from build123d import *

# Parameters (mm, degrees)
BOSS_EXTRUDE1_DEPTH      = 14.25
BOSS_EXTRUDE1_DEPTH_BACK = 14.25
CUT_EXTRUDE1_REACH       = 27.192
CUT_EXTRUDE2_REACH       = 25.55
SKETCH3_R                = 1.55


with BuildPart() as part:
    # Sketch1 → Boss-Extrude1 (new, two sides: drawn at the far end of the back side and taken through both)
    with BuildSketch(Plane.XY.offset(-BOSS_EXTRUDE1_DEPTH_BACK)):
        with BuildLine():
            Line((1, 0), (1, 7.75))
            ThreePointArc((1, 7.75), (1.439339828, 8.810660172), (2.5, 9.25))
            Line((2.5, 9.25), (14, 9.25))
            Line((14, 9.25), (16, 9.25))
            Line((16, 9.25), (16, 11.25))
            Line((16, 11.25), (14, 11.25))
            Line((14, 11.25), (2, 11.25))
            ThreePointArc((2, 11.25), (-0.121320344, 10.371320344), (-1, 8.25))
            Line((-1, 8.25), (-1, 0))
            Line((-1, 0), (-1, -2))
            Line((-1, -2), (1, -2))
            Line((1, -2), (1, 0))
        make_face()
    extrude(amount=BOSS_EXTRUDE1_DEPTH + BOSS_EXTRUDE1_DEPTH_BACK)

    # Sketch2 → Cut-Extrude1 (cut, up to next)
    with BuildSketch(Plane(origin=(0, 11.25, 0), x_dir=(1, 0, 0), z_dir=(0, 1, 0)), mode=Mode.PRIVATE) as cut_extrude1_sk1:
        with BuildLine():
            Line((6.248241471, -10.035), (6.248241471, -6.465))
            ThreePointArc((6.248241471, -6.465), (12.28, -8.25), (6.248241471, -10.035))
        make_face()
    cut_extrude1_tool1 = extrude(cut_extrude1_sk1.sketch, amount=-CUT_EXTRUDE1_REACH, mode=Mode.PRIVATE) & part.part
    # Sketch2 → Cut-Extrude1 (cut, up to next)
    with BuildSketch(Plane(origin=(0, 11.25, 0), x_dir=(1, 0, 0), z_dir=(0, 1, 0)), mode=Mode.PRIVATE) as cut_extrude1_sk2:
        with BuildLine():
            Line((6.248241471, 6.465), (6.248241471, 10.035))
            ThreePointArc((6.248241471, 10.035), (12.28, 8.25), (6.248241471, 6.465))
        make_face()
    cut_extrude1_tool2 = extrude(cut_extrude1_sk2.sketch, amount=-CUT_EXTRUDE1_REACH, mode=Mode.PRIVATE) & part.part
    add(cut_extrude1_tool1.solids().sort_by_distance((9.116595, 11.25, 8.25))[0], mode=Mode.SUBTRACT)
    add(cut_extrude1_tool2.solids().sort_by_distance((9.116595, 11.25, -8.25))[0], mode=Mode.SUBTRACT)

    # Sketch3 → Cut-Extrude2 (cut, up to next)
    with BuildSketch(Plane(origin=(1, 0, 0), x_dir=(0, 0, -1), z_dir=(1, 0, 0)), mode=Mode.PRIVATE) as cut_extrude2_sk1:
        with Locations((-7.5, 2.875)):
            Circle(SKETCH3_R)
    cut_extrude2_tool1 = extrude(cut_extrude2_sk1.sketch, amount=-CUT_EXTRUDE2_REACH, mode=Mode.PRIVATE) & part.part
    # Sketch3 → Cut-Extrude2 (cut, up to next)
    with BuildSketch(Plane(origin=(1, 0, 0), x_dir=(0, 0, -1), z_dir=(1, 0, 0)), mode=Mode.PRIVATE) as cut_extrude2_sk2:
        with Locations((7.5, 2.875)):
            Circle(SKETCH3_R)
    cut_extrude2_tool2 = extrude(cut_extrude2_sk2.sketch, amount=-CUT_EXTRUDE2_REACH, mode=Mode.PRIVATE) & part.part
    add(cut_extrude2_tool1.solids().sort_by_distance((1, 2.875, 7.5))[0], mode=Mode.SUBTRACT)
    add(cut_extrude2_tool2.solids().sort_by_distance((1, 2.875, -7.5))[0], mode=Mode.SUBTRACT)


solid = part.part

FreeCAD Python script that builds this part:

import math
import FreeCAD as App
import Part
import Sketcher
from FreeCAD import Vector

doc = App.newDocument("Part")
body = doc.addObject("PartDesign::Body", "Body")

sketch1 = body.newObject("Sketcher::SketchObject", "Sketch")
sketch1.AttachmentSupport = (doc.getObject("XY_Plane"), [""])
sketch1.MapMode = "FlatFace"
sketch1.addGeometry([
    Part.ArcOfCircle(Part.Circle(Vector(2.5, 7.8, 0), Vector(0, 0, 1), 1.5), math.radians(90), math.radians(180)),
    Part.LineSegment(Vector(2.5, 9.2, 0), Vector(16, 9.2, 0)),
    Part.LineSegment(Vector(16, 9.2, 0), Vector(16, 11.2, 0)),
    Part.LineSegment(Vector(16, 11.2, 0), Vector(2, 11.2, 0)),
    Part.ArcOfCircle(Part.Circle(Vector(2, 8.3, 0), Vector(0, 0, 1), 3), math.radians(90), math.radians(180)),
    Part.LineSegment(Vector(-1, 8.2, 0), Vector(-1, -2, 0)),
    Part.LineSegment(Vector(-1, -2, 0), Vector(1, -2, 0)),
    Part.LineSegment(Vector(1, -2, 0), Vector(1, 7.8, 0)),
], False)
sketch1.addConstraint([
    Sketcher.Constraint("Tangent", 0, 1, 1, 1),
    Sketcher.Constraint("Coincident", 1, 2, 2, 1),
    Sketcher.Constraint("Coincident", 2, 2, 3, 1),
    Sketcher.Constraint("Tangent", 3, 2, 4, 1),
    Sketcher.Constraint("Tangent", 4, 2, 5, 1),
    Sketcher.Constraint("Coincident", 5, 2, 6, 1),
    Sketcher.Constraint("Coincident", 6, 2, 7, 1),
    Sketcher.Constraint("Tangent", 7, 2, 0, 2),
    Sketcher.Constraint("Horizontal", 1),
    Sketcher.Constraint("Vertical", 2),
    Sketcher.Constraint("Horizontal", 3),
    Sketcher.Constraint("Vertical", 5),
    Sketcher.Constraint("Horizontal", 6),
    Sketcher.Constraint("Vertical", 7),
    Sketcher.Constraint("Equal", 6, 2),
    Sketcher.Constraint("Radius", 4, 3.0),
    Sketcher.Constraint("Radius", 0, 1.5),
    Sketcher.Constraint("DistanceX", 3, 2, 3, 1, 14.0),
    Sketcher.Constraint("DistanceX", 6, 1, 6, 2, 2.0),
    Sketcher.Constraint("DistanceX", -1, 1, 4, 3, 2.0),
    Sketcher.Constraint("DistanceY", 5, 2, -1, 1, 2.0),
    Sketcher.Constraint("DistanceY", 5, 2, 5, 1, 10.25),
])
pad1 = body.newObject("PartDesign::Pad", "Pad")
pad1.Profile = sketch1
pad1.Type = "TwoLengths"
pad1.Length = 14.25
pad1.Length2 = 14.25

sketch2 = body.newObject("Sketcher::SketchObject", "Sketch001")
sketch2.AttachmentSupport = (doc.getObject("XZ_Plane"), [""])
sketch2.MapMode = "FlatFace"
sketch2.AttachmentOffset = App.Placement(Vector(0, 0, -11.25), App.Rotation())
sketch2.addGeometry([
    Part.LineSegment(Vector(6.2, 6.5, 0), Vector(6.2, 10, 0)),
    Part.ArcOfCircle(Part.Circle(Vector(9, 8.2, 0), Vector(0, 0, 1), 3.3), math.radians(-147), math.radians(147)),
], False)
sketch2.addConstraint([
    Sketcher.Constraint("Coincident", 0, 1, 1, 1),
    Sketcher.Constraint("Coincident", 1, 2, 0, 2),
    Sketcher.Constraint("Vertical", 0),
    Sketcher.Constraint("Radius", 1, 3.28),
    Sketcher.Constraint("DistanceX", -1, 1, 1, 3, 9.0),
    Sketcher.Constraint("DistanceY", 0, 1, 0, 2, 3.57),
    Sketcher.Constraint("DistanceY", -1, 1, 1, 3, 8.25),
])
pocket1 = body.newObject("PartDesign::Pocket", "Pocket")
pocket1.Profile = sketch2
pocket1.Type = "UpToFirst"
pocket1.Reversed = True

sketch3 = body.newObject("Sketcher::SketchObject", "Sketch002")
sketch3.AttachmentSupport = (doc.getObject("XZ_Plane"), [""])
sketch3.MapMode = "FlatFace"
sketch3.AttachmentOffset = App.Placement(Vector(0, 0, -11.25), App.Rotation())
sketch3.addGeometry([
    Part.LineSegment(Vector(6.2, -10, 0), Vector(6.2, -6.5, 0)),
    Part.ArcOfCircle(Part.Circle(Vector(9, -8.2, 0), Vector(0, 0, 1), 3.3), math.radians(-147), math.radians(147)),
], False)
sketch3.addConstraint([
    Sketcher.Constraint("Coincident", 0, 1, 1, 1),
    Sketcher.Constraint("Coincident", 1, 2, 0, 2),
    Sketcher.Constraint("Vertical", 0),
    Sketcher.Constraint("Radius", 1, 3.28),
    Sketcher.Constraint("DistanceX", -1, 1, 1, 3, 9.0),
    Sketcher.Constraint("DistanceY", 0, 1, 0, 2, 3.57),
    Sketcher.Constraint("DistanceY", 1, 3, -1, 1, 8.25),
])
pocket2 = body.newObject("PartDesign::Pocket", "Pocket001")
pocket2.Profile = sketch3
pocket2.Type = "UpToFirst"
pocket2.Reversed = True

sketch4 = body.newObject("Sketcher::SketchObject", "Sketch003")
sketch4.AttachmentSupport = (doc.getObject("YZ_Plane"), [""])
sketch4.MapMode = "FlatFace"
sketch4.AttachmentOffset = App.Placement(Vector(0, 0, 1), App.Rotation())
sketch4.addGeometry(Part.Circle(Vector(2.9, 7.5, 0), Vector(0, 0, 1), 1.6), False)
sketch4.addConstraint([
    Sketcher.Constraint("Diameter", 0, 3.1),
    Sketcher.Constraint("DistanceY", -1, 1, 0, 3, 7.5),
    Sketcher.Constraint("DistanceX", -1, 1, 0, 3, 2.875),
])
pocket3 = body.newObject("PartDesign::Pocket", "Pocket002")
pocket3.Profile = sketch4
pocket3.Type = "UpToFirst"

sketch5 = body.newObject("Sketcher::SketchObject", "Sketch004")
sketch5.AttachmentSupport = (doc.getObject("YZ_Plane"), [""])
sketch5.MapMode = "FlatFace"
sketch5.AttachmentOffset = App.Placement(Vector(0, 0, 1), App.Rotation())
sketch5.addGeometry(Part.Circle(Vector(2.9, -7.5, 0), Vector(0, 0, 1), 1.6), False)
sketch5.addConstraint([
    Sketcher.Constraint("Diameter", 0, 3.1),
    Sketcher.Constraint("DistanceY", 0, 3, -1, 1, 7.5),
    Sketcher.Constraint("DistanceX", -1, 1, 0, 3, 2.875),
])
pocket4 = body.newObject("PartDesign::Pocket", "Pocket003")
pocket4.Profile = sketch5
pocket4.Type = "UpToFirst"

doc.recompute()
